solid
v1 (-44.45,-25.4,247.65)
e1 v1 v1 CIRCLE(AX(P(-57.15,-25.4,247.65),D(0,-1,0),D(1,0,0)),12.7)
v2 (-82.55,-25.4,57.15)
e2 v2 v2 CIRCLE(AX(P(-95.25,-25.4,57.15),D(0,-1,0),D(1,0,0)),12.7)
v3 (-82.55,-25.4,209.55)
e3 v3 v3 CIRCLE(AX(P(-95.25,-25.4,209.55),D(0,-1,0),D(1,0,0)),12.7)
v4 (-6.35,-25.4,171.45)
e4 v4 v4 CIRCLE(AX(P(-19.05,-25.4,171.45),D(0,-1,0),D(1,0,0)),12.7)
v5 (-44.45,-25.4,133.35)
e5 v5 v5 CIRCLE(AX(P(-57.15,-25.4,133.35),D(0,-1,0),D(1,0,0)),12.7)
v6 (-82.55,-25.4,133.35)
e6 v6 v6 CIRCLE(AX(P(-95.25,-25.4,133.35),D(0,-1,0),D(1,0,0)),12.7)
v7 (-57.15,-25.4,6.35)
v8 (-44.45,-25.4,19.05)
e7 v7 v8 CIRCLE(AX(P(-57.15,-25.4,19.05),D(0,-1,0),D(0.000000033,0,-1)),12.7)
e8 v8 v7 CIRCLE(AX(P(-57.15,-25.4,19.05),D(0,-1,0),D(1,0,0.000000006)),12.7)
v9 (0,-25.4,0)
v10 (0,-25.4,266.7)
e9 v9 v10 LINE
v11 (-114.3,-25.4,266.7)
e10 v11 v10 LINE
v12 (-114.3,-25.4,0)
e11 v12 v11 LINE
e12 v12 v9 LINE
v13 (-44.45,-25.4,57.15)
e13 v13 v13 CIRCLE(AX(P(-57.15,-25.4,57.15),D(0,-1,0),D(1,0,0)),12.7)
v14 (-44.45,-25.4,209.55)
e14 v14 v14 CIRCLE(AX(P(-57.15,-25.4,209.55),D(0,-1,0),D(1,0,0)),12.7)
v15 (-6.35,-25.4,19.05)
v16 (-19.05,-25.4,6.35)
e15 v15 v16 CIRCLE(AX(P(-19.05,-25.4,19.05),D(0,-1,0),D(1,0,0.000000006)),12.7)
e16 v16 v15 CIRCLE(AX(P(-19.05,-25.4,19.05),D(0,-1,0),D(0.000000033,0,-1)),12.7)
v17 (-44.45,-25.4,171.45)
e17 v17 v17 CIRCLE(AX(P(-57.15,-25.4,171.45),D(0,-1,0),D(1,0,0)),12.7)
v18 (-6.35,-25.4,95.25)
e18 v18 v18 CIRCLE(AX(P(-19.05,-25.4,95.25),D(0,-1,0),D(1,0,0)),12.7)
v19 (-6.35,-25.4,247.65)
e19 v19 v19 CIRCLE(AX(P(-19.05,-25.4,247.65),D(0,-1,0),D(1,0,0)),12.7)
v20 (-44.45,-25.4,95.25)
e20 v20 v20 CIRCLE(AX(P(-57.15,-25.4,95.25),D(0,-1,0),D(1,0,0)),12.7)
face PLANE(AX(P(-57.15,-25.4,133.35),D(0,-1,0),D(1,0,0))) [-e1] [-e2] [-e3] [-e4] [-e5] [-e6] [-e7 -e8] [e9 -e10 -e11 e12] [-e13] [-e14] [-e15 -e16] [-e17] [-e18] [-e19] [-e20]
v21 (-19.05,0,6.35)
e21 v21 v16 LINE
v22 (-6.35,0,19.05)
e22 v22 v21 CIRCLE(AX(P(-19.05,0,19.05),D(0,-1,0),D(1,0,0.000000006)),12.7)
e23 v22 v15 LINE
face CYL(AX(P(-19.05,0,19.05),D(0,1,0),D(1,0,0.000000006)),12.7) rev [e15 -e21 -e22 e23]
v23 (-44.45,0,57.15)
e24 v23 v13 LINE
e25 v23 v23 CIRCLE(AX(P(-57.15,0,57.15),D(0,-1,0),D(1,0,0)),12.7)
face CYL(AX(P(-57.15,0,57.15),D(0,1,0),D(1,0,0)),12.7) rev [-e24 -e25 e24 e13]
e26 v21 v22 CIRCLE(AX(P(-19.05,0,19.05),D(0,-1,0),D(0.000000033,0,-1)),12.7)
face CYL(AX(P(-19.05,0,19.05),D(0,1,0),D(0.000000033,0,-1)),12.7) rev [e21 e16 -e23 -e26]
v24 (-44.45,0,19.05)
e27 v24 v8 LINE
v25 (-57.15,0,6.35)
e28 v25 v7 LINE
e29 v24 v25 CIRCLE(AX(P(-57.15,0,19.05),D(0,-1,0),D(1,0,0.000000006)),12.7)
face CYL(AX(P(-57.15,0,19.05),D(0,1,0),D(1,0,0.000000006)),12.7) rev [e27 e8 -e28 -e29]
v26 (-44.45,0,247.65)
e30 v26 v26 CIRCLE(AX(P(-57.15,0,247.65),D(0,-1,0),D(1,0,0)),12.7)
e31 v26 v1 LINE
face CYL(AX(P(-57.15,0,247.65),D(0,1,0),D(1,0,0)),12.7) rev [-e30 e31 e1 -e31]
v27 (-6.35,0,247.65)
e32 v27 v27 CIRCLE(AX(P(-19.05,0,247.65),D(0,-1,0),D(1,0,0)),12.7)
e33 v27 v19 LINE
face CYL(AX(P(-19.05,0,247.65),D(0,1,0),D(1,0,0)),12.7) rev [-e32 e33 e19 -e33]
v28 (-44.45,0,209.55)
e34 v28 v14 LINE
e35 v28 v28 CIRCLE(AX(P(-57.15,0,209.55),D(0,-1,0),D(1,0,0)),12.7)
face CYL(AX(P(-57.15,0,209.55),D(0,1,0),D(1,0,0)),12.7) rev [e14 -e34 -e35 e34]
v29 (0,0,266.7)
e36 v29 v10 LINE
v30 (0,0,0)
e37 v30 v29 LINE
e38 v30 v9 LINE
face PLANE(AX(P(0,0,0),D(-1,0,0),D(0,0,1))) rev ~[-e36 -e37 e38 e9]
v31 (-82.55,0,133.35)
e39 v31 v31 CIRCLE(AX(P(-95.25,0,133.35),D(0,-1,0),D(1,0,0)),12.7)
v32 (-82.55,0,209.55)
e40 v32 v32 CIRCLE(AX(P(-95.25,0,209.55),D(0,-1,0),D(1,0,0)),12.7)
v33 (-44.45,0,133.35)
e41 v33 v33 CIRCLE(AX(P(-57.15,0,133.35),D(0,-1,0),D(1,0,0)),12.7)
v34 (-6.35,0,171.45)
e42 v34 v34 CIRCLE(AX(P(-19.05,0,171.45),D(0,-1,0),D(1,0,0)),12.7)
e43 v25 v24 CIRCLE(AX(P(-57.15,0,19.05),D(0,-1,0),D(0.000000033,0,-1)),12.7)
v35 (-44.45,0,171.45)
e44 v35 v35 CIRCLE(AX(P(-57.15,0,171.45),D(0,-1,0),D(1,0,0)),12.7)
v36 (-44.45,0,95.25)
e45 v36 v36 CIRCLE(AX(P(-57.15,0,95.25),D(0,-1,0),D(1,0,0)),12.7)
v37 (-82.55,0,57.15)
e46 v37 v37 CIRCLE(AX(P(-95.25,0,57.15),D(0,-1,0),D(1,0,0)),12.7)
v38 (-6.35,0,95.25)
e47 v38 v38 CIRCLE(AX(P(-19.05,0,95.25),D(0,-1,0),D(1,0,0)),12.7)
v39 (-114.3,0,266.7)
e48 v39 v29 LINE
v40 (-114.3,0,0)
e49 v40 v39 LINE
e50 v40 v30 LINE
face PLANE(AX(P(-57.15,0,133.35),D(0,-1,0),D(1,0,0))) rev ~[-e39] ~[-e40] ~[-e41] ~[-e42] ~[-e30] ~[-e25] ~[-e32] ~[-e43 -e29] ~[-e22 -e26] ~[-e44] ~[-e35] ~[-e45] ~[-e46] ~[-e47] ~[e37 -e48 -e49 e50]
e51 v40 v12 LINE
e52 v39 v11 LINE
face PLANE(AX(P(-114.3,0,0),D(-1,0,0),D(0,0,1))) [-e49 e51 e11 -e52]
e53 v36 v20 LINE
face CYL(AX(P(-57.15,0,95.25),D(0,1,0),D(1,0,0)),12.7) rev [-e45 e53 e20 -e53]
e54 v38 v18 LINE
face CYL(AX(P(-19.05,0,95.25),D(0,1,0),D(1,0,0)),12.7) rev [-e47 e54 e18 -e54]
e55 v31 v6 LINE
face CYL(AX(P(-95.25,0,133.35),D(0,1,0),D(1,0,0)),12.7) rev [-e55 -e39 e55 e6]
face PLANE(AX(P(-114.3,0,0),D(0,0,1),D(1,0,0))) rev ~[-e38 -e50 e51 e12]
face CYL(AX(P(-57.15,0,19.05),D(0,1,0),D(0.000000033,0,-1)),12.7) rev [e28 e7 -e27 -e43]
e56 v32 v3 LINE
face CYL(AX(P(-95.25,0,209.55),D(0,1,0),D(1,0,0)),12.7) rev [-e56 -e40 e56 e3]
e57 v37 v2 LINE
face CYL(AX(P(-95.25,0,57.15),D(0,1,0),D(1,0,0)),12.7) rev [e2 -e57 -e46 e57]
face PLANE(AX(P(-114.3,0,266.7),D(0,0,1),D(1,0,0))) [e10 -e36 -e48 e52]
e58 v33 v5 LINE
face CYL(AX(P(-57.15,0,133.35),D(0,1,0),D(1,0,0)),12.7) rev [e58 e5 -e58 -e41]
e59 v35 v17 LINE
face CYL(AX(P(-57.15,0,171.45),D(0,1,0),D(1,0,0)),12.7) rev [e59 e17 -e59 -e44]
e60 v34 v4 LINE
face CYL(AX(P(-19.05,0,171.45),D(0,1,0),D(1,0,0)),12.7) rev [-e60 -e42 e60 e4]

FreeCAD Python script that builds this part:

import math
import FreeCAD as App
import Part
import Sketcher
from FreeCAD import Vector
Q = App.Units.Quantity


def add_polygon(sketch, points):
    """Adds a closed chain of lines whose ends are joined by coincident constraints."""
    first, n = sketch.GeometryCount, len(points)
    for a, b in zip(points, points[1:] + points[:1]):
        sketch.addGeometry(Part.LineSegment(App.Vector(*a, 0), App.Vector(*b, 0)), False)
    for i in range(n):
        sketch.addConstraint(Sketcher.Constraint("Coincident", first + i, 2, first + (i + 1) % n, 1))

doc = App.newDocument("Part")
body = doc.addObject("PartDesign::Body", "Body")

# Sketch on XZ plane
sketch1 = body.newObject("Sketcher::SketchObject", "Sketch")
sketch1.AttachmentSupport = (doc.getObject("XZ_Plane"), [""])
sketch1.MapMode = "FlatFace"
add_polygon(sketch1, [(-114, 267), (-114, 0), (0, 0), (0, 267)])  # lines 0-3
sketch1.addConstraint([
    Sketcher.Constraint("Vertical", 0),
    Sketcher.Constraint("Horizontal", 1),
    Sketcher.Constraint("Vertical", 2),
    Sketcher.Constraint("Horizontal", 3),
    Sketcher.Constraint("Coincident", 1, 2, -1, 1),
    Sketcher.Constraint("DistanceX", 1, 1, 1, 2, Q("4.5 in")),
    Sketcher.Constraint("DistanceY", 0, 2, 0, 1, Q("10.5 in")),
])
pad1 = body.newObject("PartDesign::Pad", "Pad")
pad1.Profile = sketch1
pad1.Length = Q("1 in")

# Sketch on XZ plane
sketch2 = body.newObject("Sketcher::SketchObject", "Sketch001")
sketch2.AttachmentSupport = (doc.getObject("XZ_Plane"), [""])
sketch2.MapMode = "FlatFace"
sketch2.addGeometry([
    Part.ArcOfCircle(Part.Circle(Vector(-57, 19, 0), Vector(0, 0, 1), 13), math.radians(0), math.radians(270)),  # 0
    Part.ArcOfCircle(Part.Circle(Vector(-57, 19, 0), Vector(0, 0, 1), 13), math.radians(-90), math.radians(0)),  # 1
    Part.ArcOfCircle(Part.Circle(Vector(-19, 19, 0), Vector(0, 0, 1), 13), math.radians(0), math.radians(270)),  # 2
    Part.ArcOfCircle(Part.Circle(Vector(-19, 19, 0), Vector(0, 0, 1), 13), math.radians(-90), math.radians(0)),  # 3
    Part.Circle(Vector(-57, 57, 0), Vector(0, 0, 1), 13),  # 4
    Part.Circle(Vector(-95, 57, 0), Vector(0, 0, 1), 13),  # 5
    Part.Circle(Vector(-19, 95, 0), Vector(0, 0, 1), 13),  # 6
    Part.Circle(Vector(-57, 95, 0), Vector(0, 0, 1), 13),  # 7
    Part.Circle(Vector(-95, 133, 0), Vector(0, 0, 1), 13),  # 8
    Part.Circle(Vector(-57, 133, 0), Vector(0, 0, 1), 13),  # 9
    Part.Circle(Vector(-95, 210, 0), Vector(0, 0, 1), 13),  # 10
    Part.Circle(Vector(-57, 210, 0), Vector(0, 0, 1), 13),  # 11
    Part.Circle(Vector(-19, 171, 0), Vector(0, 0, 1), 13),  # 12
    Part.Circle(Vector(-57, 171, 0), Vector(0, 0, 1), 13),  # 13
    Part.Circle(Vector(-19, 248, 0), Vector(0, 0, 1), 13),  # 14
    Part.Circle(Vector(-57, 248, 0), Vector(0, 0, 1), 13),  # 15
], False)
sketch2.addConstraint([
    Sketcher.Constraint("Tangent", 0, 1, 1, 2),
    Sketcher.Constraint("Coincident", 1, 1, 0, 2),
    Sketcher.Constraint("Tangent", 2, 1, 3, 2),
    Sketcher.Constraint("Coincident", 3, 1, 2, 2),
    Sketcher.Constraint("Equal", 1, 2),
    Sketcher.Constraint("Equal", 3, 4),
    Sketcher.Constraint("Equal", 4, 5),
    Sketcher.Constraint("Equal", 5, 6),
    Sketcher.Constraint("Equal", 6, 7),
    Sketcher.Constraint("Equal", 7, 8),
    Sketcher.Constraint("Equal", 8, 9),
    Sketcher.Constraint("Equal", 9, 10),
    Sketcher.Constraint("Equal", 10, 11),
    Sketcher.Constraint("Equal", 11, 12),
    Sketcher.Constraint("Equal", 12, 13),
    Sketcher.Constraint("Equal", 13, 14),
    Sketcher.Constraint("Equal", 14, 15),
    Sketcher.Constraint("Horizontal", 1, 3, 2, 3),
    Sketcher.Constraint("Horizontal", 4, 3, 5, 3),
    Sketcher.Constraint("Horizontal", 6, 3, 7, 3),
    Sketcher.Constraint("Horizontal", 8, 3, 9, 3),
    Sketcher.Constraint("Horizontal", 10, 3, 11, 3),
    Sketcher.Constraint("Horizontal", 12, 3, 13, 3),
    Sketcher.Constraint("Horizontal", 14, 3, 15, 3),
    Sketcher.Constraint("Horizontal", 3, 3, 0, 1),
    Sketcher.Constraint("Horizontal", 0, 1, 2, 1),
    Sketcher.Constraint("Vertical", 1, 3, 4, 3),
    Sketcher.Constraint("Vertical", 3, 3, 6, 3),
    Sketcher.Constraint("Vertical", 4, 3, 7, 3),
    Sketcher.Constraint("Vertical", 5, 3, 8, 3),
    Sketcher.Constraint("Vertical", 7, 3, 9, 3),
    Sketcher.Constraint("Vertical", 8, 3, 10, 3),
    Sketcher.Constraint("Vertical", 9, 3, 11, 3),
    Sketcher.Constraint("Vertical", 6, 3, 12, 3),
    Sketcher.Constraint("Vertical", 11, 3, 13, 3),
    Sketcher.Constraint("Vertical", 12, 3, 14, 3),
    Sketcher.Constraint("Vertical", 13, 3, 15, 3),
    Sketcher.Constraint("Vertical", 15, 3, 1, 1),
    Sketcher.Constraint("Vertical", 14, 3, 3, 1),
    Sketcher.Constraint("Diameter", 4, Q("1 in")),
    Sketcher.Constraint("DistanceX", 5, 3, 3, 3, Q("3 in")),
    Sketcher.Constraint("DistanceY", 3, 3, 6, 3, Q("3 in")),
    Sketcher.Constraint("DistanceY", 5, 3, 8, 3, Q("3 in")),
    Sketcher.Constraint("DistanceY", 8, 3, 10, 3, Q("3 in")),
    Sketcher.Constraint("DistanceY", 6, 3, 12, 3, Q("3 in")),
    Sketcher.Constraint("DistanceY", 12, 3, 14, 3, Q("3 in")),
    Sketcher.Constraint("DistanceX", 0, 1, 3, 3, Q("1 in")),
    Sketcher.Constraint("DistanceY", 1, 3, 4, 3, Q("1.5 in")),
    Sketcher.Constraint("DistanceX", 0, 3, -1, 1, Q("2.25 in")),
    Sketcher.Constraint("DistanceY", -1, 1, 0, 3, Q("0.75 in")),
])
pocket1 = body.newObject("PartDesign::Pocket", "Pocket")
pocket1.Profile = sketch2
pocket1.Length = Q("1 in")
pocket1.Reversed = True

doc.recompute()
